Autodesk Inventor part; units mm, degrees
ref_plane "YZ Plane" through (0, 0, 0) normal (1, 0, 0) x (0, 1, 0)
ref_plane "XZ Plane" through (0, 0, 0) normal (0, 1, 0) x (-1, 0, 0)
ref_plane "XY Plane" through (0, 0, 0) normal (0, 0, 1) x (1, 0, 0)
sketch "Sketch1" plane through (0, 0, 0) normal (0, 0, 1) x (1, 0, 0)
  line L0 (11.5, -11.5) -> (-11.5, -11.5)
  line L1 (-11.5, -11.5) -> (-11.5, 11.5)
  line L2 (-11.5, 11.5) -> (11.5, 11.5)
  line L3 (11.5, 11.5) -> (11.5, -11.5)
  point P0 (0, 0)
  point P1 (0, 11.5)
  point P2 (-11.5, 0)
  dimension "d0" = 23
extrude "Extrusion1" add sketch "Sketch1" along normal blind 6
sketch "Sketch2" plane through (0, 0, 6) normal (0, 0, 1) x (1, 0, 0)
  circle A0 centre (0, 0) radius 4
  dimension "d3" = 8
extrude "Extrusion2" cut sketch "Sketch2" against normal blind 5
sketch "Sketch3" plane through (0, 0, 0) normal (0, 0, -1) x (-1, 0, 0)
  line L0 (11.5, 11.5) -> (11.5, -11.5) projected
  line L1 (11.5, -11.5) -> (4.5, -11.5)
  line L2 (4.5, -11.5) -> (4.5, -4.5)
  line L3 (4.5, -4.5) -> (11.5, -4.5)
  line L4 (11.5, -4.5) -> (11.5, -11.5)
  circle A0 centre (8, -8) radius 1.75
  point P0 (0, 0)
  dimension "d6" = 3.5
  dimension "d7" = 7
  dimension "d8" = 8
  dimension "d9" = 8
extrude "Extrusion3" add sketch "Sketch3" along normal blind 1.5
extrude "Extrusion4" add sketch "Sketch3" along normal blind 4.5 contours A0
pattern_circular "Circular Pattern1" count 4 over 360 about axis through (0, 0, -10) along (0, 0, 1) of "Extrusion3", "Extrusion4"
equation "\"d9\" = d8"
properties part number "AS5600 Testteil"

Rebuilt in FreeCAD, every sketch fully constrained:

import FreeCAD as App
import Part
import Sketcher

doc = App.newDocument("Part")
body = doc.addObject("PartDesign::Body", "Body")

# Sketch on XY plane
sketch1 = body.newObject("Sketcher::SketchObject", "Sketch")
sketch1.AttachmentSupport = (doc.getObject("XY_Plane"), [""])
sketch1.MapMode = "FlatFace"
sketch1.addGeometry(Part.LineSegment(App.Vector(-12, -12, 0), App.Vector(12, -12, 0)), False)
sketch1.addGeometry(Part.LineSegment(App.Vector(12, -12, 0), App.Vector(12, 12, 0)), False)
sketch1.addGeometry(Part.LineSegment(App.Vector(12, 12, 0), App.Vector(-12, 12, 0)), False)
sketch1.addGeometry(Part.LineSegment(App.Vector(-12, 12, 0), App.Vector(-12, -12, 0)), False)
sketch1.addConstraint(Sketcher.Constraint("Coincident", 0, 2, 1, 1))
sketch1.addConstraint(Sketcher.Constraint("Coincident", 1, 2, 2, 1))
sketch1.addConstraint(Sketcher.Constraint("Coincident", 2, 2, 3, 1))
sketch1.addConstraint(Sketcher.Constraint("Coincident", 3, 2, 0, 1))
sketch1.addConstraint(Sketcher.Constraint("Horizontal", 0))
sketch1.addConstraint(Sketcher.Constraint("Vertical", 1))
sketch1.addConstraint(Sketcher.Constraint("Horizontal", 2))
sketch1.addConstraint(Sketcher.Constraint("Vertical", 3))
sketch1.addConstraint(Sketcher.Constraint("Symmetric", 0, 2, 2, 2, -1, 1))
sketch1.addConstraint(Sketcher.Constraint("Equal", 2, 1))
sketch1.addConstraint(Sketcher.Constraint("DistanceX", 0, 1, 0, 2, 23.0))
pad1 = body.newObject("PartDesign::Pad", "Pad")
pad1.Profile = sketch1
pad1.Length = 6

# Sketch on XY plane
sketch2 = body.newObject("Sketcher::SketchObject", "Sketch001")
sketch2.AttachmentSupport = (doc.getObject("XY_Plane"), [""])
sketch2.MapMode = "FlatFace"
sketch2.AttachmentOffset = App.Placement(App.Vector(0, 0, 6), App.Rotation())
sketch2.addGeometry(Part.Circle(App.Vector(0, 0, 0), App.Vector(0, 0, 1), 4), False)
sketch2.addConstraint(Sketcher.Constraint("Coincident", 0, 3, -1, 1))
sketch2.addConstraint(Sketcher.Constraint("Diameter", 0, 8.0))
pocket1 = body.newObject("PartDesign::Pocket", "Pocket")
pocket1.Profile = sketch2
pocket1.Length = 5

# Sketch on XY plane
sketch3 = body.newObject("Sketcher::SketchObject", "Sketch002")
sketch3.AttachmentSupport = (doc.getObject("XY_Plane"), [""])
sketch3.MapMode = "FlatFace"
sketch3.addGeometry(Part.LineSegment(App.Vector(-11.5, -11.5, 0), App.Vector(-11.5, -4.5, 0)), False)
sketch3.addGeometry(Part.LineSegment(App.Vector(-11.5, -4.5, 0), App.Vector(-4.5, -4.5, 0)), False)
sketch3.addGeometry(Part.LineSegment(App.Vector(-4.5, -4.5, 0), App.Vector(-4.5, -11.5, 0)), False)
sketch3.addGeometry(Part.LineSegment(App.Vector(-4.5, -11.5, 0), App.Vector(-11.5, -11.5, 0)), False)
sketch3.addGeometry(Part.Circle(App.Vector(-8, -8, 0), App.Vector(0, 0, 1), 1.8), False)
sketch3.addConstraint(Sketcher.Constraint("Coincident", 0, 2, 1, 1))
sketch3.addConstraint(Sketcher.Constraint("Coincident", 1, 2, 2, 1))
sketch3.addConstraint(Sketcher.Constraint("Coincident", 2, 2, 3, 1))
sketch3.addConstraint(Sketcher.Constraint("Coincident", 3, 2, 0, 1))
sketch3.addConstraint(Sketcher.Constraint("Vertical", 0))
sketch3.addConstraint(Sketcher.Constraint("Horizontal", 1))
sketch3.addConstraint(Sketcher.Constraint("Vertical", 2))
sketch3.addConstraint(Sketcher.Constraint("Horizontal", 3))
sketch3.addConstraint(Sketcher.Constraint("Equal", 3, 0))
sketch3.addConstraint(Sketcher.Constraint("Diameter", 4, 3.5))
sketch3.addConstraint(Sketcher.Constraint("DistanceX", 1, 1, 1, 2, 7.0))
sketch3.addConstraint(Sketcher.Constraint("DistanceX", 4, 3, -1, 1, 8.0))
sketch3.addConstraint(Sketcher.Constraint("DistanceY", 4, 3, -1, 1, 8.0))
sketch3.addConstraint(Sketcher.Constraint("DistanceX", 0, 2, 4, 3, 3.5))
sketch3.addConstraint(Sketcher.Constraint("DistanceY", 4, 3, 0, 2, 3.5))
pad2 = body.newObject("PartDesign::Pad", "Pad001")
pad2.Profile = sketch3
pad2.Length = 1.5
pad2.Reversed = True

# Sketch on XY plane
sketch4 = body.newObject("Sketcher::SketchObject", "Sketch003")
sketch4.AttachmentSupport = (doc.getObject("XY_Plane"), [""])
sketch4.MapMode = "FlatFace"
sketch4.addGeometry(Part.Circle(App.Vector(-8, -8, 0), App.Vector(0, 0, 1), 1.8), False)
sketch4.addConstraint(Sketcher.Constraint("Diameter", 0, 3.5))
sketch4.addConstraint(Sketcher.Constraint("DistanceX", 0, 3, -1, 1, 8.0))
sketch4.addConstraint(Sketcher.Constraint("DistanceY", 0, 3, -1, 1, 8.0))
pad3 = body.newObject("PartDesign::Pad", "Pad002")
pad3.Profile = sketch4
pad3.Length = 4.5
pad3.Reversed = True
doc.recompute()

polarpattern = body.newObject("PartDesign::PolarPattern", "PolarPattern")
polarpattern.Originals = [pad2, pad3]
polarpattern.Axis = (doc.getObject("Z_Axis"), [""])
polarpattern.Angle = 360
polarpattern.Occurrences = 4
body.Tip = polarpattern

doc.recompute()
